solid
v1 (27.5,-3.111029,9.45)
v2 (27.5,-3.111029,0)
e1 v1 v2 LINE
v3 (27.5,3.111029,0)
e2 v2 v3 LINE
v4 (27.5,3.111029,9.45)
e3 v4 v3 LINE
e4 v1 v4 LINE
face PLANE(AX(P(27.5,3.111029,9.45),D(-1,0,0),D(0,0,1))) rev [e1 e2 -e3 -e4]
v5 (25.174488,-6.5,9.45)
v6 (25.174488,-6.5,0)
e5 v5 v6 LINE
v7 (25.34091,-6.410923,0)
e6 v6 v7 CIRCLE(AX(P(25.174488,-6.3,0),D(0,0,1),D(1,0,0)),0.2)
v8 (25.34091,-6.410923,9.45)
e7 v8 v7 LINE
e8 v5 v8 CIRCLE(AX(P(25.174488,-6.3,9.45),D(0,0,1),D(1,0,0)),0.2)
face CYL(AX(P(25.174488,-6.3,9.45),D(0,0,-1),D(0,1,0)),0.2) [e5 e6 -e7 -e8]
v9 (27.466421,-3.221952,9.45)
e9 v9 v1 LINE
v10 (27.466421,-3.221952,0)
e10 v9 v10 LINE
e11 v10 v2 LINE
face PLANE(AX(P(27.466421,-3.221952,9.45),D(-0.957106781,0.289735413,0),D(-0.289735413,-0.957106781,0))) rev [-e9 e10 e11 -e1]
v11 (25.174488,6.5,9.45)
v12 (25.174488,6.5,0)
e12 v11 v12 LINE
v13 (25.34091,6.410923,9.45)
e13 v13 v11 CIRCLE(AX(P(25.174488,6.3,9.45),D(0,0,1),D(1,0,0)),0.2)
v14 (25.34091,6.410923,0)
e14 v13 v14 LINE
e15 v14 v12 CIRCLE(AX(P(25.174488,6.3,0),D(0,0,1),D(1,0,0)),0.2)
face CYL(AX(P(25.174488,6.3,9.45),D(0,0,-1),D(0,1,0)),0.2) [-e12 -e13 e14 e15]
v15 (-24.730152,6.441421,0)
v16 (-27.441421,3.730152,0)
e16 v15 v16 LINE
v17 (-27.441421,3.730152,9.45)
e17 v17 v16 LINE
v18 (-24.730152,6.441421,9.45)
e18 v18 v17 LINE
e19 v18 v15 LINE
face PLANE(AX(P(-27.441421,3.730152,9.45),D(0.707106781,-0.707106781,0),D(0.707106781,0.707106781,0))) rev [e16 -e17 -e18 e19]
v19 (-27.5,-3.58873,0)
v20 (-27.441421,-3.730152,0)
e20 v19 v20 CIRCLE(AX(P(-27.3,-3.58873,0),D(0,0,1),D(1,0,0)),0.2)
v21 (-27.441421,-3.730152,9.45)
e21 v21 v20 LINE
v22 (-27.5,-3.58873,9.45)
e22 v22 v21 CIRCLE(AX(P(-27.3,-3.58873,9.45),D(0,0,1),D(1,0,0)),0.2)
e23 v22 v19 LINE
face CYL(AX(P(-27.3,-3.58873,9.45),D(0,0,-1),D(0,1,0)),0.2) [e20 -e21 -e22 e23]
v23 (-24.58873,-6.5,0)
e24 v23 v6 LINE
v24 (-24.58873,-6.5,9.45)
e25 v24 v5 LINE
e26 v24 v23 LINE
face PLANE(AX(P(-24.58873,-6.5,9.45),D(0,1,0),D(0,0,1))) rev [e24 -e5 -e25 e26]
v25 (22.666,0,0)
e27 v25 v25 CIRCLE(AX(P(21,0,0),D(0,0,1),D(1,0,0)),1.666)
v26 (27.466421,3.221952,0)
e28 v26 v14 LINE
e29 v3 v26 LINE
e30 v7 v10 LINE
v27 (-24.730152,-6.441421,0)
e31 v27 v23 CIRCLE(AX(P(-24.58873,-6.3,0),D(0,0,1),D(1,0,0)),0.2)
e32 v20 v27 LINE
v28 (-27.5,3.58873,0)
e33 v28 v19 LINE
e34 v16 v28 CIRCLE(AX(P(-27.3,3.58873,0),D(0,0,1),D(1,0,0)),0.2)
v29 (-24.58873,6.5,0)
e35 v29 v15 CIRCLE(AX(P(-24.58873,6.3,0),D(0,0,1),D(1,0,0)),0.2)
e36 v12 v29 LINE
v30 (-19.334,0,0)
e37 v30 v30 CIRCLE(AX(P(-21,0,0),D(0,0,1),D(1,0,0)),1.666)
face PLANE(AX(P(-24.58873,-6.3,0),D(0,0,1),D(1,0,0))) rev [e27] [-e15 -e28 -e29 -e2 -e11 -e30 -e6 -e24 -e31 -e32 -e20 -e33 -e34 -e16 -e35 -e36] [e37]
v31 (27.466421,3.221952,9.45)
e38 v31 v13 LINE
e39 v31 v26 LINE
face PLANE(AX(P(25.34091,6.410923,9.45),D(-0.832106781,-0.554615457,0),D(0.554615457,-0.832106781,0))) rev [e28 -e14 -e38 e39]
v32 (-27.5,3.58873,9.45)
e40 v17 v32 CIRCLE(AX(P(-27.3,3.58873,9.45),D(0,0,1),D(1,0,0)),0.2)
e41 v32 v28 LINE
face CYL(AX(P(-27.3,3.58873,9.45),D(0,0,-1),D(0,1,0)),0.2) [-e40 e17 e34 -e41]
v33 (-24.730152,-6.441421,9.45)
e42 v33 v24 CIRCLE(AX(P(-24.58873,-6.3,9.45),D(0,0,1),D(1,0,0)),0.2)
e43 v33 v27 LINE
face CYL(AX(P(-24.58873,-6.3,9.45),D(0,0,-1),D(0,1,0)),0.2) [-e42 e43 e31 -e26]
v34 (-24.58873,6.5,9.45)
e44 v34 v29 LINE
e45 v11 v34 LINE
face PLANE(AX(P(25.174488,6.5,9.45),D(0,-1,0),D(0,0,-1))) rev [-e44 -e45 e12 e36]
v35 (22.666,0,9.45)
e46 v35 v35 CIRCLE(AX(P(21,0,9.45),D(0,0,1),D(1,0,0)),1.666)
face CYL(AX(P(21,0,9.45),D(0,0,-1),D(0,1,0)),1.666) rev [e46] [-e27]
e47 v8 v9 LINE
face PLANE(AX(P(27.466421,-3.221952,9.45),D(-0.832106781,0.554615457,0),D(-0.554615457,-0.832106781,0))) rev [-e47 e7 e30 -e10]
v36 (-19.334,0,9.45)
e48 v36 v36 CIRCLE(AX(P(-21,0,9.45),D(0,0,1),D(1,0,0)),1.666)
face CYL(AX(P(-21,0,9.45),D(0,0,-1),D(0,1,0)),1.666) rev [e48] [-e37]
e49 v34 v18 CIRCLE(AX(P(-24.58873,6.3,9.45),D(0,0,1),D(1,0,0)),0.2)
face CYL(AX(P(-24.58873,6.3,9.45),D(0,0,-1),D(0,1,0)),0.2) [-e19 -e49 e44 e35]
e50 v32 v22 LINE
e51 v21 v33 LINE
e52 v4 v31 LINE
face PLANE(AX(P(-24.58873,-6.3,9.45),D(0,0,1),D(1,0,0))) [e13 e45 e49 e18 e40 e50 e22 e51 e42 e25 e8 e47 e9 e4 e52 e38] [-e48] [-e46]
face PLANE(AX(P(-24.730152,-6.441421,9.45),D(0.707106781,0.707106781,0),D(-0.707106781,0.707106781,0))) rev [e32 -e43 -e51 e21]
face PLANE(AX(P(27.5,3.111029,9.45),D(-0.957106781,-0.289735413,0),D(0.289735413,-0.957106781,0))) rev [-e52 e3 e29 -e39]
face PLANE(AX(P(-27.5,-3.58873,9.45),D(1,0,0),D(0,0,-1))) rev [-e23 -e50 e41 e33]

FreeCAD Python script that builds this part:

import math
import FreeCAD as App
import Part
import Sketcher

doc = App.newDocument("Part")
body = doc.addObject("PartDesign::Body", "Body")

# Sketch on XY plane
sketch1 = doc.addObject("Sketcher::SketchObject", "Sketch")
body.addObject(sketch1)
sketch1.AttachmentSupport = (doc.XY_Plane, [""])
sketch1.MapMode = "FlatFace"
sketch1.addGeometry([
    Part.LineSegment(App.Vector(-27.441421, -3.730152, 0), App.Vector(-24.730152, -6.441421, 0)),  # 0
    Part.ArcOfCircle(Part.Circle(App.Vector(-24.58873, -6.3, 0), App.Vector(0, 0, 1), 0.2), math.radians(-135.000001), math.radians(-89.999999)),  # 1
    Part.LineSegment(App.Vector(-24.58873, -6.5, 0), App.Vector(25.174488, -6.5, 0)),  # 2
    Part.ArcOfCircle(Part.Circle(App.Vector(25.174488, -6.3, 0), App.Vector(0, 0, 1), 0.2), math.radians(-90), math.radians(-33.684232)),  # 3
    Part.LineSegment(App.Vector(25.34091, -6.410923, 0), App.Vector(27.466421, -3.221952, 0)),  # 4
    Part.LineSegment(App.Vector(27.466421, -3.221952, 0), App.Vector(27.5, -3.111029, 0)),  # 5
    Part.LineSegment(App.Vector(27.5, -3.111029, 0), App.Vector(27.5, 3.111029, 0)),  # 6
    Part.LineSegment(App.Vector(27.5, 3.111029, 0), App.Vector(27.466421, 3.221952, 0)),  # 7
    Part.LineSegment(App.Vector(27.466421, 3.221952, 0), App.Vector(25.34091, 6.410923, 0)),  # 8
    Part.ArcOfCircle(Part.Circle(App.Vector(25.174488, 6.3, 0), App.Vector(0, 0, 1), 0.2), math.radians(33.684232), math.radians(90)),  # 9
    Part.LineSegment(App.Vector(25.174488, 6.5, 0), App.Vector(-24.58873, 6.5, 0)),  # 10
    Part.ArcOfCircle(Part.Circle(App.Vector(-24.58873, 6.3, 0), App.Vector(0, 0, 1), 0.2), math.radians(89.999999), math.radians(135.000001)),  # 11
    Part.LineSegment(App.Vector(-24.730152, 6.441421, 0), App.Vector(-27.441421, 3.730152, 0)),  # 12
    Part.ArcOfCircle(Part.Circle(App.Vector(-27.3, 3.58873, 0), App.Vector(0, 0, 1), 0.2), math.radians(134.999999), math.radians(180.000001)),  # 13
    Part.LineSegment(App.Vector(-27.5, 3.58873, 0), App.Vector(-27.5, -3.58873, 0)),  # 14
    Part.ArcOfCircle(Part.Circle(App.Vector(-27.3, -3.58873, 0), App.Vector(0, 0, 1), 0.2), math.radians(179.999999), math.radians(225.000001)),  # 15
    Part.Circle(App.Vector(21, 0, 0), App.Vector(0, 0, 1), 1.666),  # 16
    Part.Circle(App.Vector(-21, 0, 0), App.Vector(0, 0, 1), 1.666),  # 17
], False)
sketch1.addConstraint([
    Sketcher.Constraint("Coincident", 0, 2, 1, 1),
    Sketcher.Constraint("Coincident", 1, 2, 2, 1),
    Sketcher.Constraint("Coincident", 2, 2, 3, 1),
    Sketcher.Constraint("Coincident", 3, 2, 4, 1),
    Sketcher.Constraint("Coincident", 4, 2, 5, 1),
    Sketcher.Constraint("Coincident", 5, 2, 6, 1),
    Sketcher.Constraint("Coincident", 6, 2, 7, 1),
    Sketcher.Constraint("Coincident", 7, 2, 8, 1),
    Sketcher.Constraint("Coincident", 8, 2, 9, 1),
    Sketcher.Constraint("Coincident", 9, 2, 10, 1),
    Sketcher.Constraint("Coincident", 10, 2, 11, 1),
    Sketcher.Constraint("Coincident", 11, 2, 12, 1),
    Sketcher.Constraint("Coincident", 12, 2, 13, 1),
    Sketcher.Constraint("Coincident", 13, 2, 14, 1),
    Sketcher.Constraint("Coincident", 14, 2, 15, 1),
    Sketcher.Constraint("Coincident", 15, 2, 0, 1),
    Sketcher.Constraint("Horizontal", 2),
    Sketcher.Constraint("Vertical", 6),
    Sketcher.Constraint("Horizontal", 10),
    Sketcher.Constraint("Vertical", 14),
    Sketcher.Constraint("PointOnObject", 16, 3, -1),
    Sketcher.Constraint("PointOnObject", 17, 3, -1),
    Sketcher.Constraint("Radius", 1, 0.2),
    Sketcher.Constraint("Radius", 3, 0.2),
    Sketcher.Constraint("Radius", 9, 0.2),
    Sketcher.Constraint("Radius", 11, 0.2),
    Sketcher.Constraint("Radius", 13, 0.2),
    Sketcher.Constraint("Radius", 15, 0.2),
    Sketcher.Constraint("Diameter", 16, 3.332),
    Sketcher.Constraint("Diameter", 17, 3.332),
    Sketcher.Constraint("DistanceX", -1, 1, 16, 3, 21.0),
    Sketcher.Constraint("DistanceX", 17, 3, -1, 1, 21.0),
    Sketcher.Constraint("DistanceY", 1, 3, -1, 1, 6.3),
    Sketcher.Constraint("DistanceY", -1, 1, 9, 3, 6.3),
    Sketcher.Constraint("DistanceX", 13, 3, -1, 1, 27.3),
    Sketcher.Constraint("DistanceX", -1, 1, 5, 2, 27.5),
    Sketcher.Constraint("DistanceX", 2, 1, 2, 2, 49.763218),
    Sketcher.Constraint("DistanceX", 10, 2, 10, 1, 49.763218),
    Sketcher.Constraint("DistanceY", 14, 2, 14, 1, 7.17746),
    Sketcher.Constraint("DistanceY", 6, 1, 6, 2, 6.222058),
    Sketcher.Constraint("DistanceX", 1, 3, -1, 1, 24.58873),
    Sketcher.Constraint("DistanceX", -1, 1, 3, 3, 25.174488),
    Sketcher.Constraint("DistanceX", -1, 1, 9, 3, 25.174488),
    Sketcher.Constraint("DistanceX", 11, 3, -1, 1, 24.58873),
    Sketcher.Constraint("DistanceY", -1, 1, 13, 3, 3.58873),
    Sketcher.Constraint("DistanceY", 15, 3, -1, 1, 3.58873),
    Sketcher.Constraint("DistanceX", 0, 2, -1, 1, 24.730152),
    Sketcher.Constraint("DistanceX", 1, 2, -1, 1, 24.58873),
    Sketcher.Constraint("DistanceX", -1, 1, 3, 2, 25.34091),
    Sketcher.Constraint("DistanceX", -1, 1, 4, 2, 27.466421),
    Sketcher.Constraint("DistanceY", 4, 2, -1, 1, 3.221952),
    Sketcher.Constraint("DistanceY", 5, 2, -1, 1, 3.111029),
    Sketcher.Constraint("DistanceX", -1, 1, 7, 2, 27.466421),
    Sketcher.Constraint("DistanceY", -1, 1, 7, 2, 3.221952),
    Sketcher.Constraint("DistanceX", -1, 1, 8, 2, 25.34091),
    Sketcher.Constraint("DistanceX", -1, 1, 9, 2, 25.174488),
    Sketcher.Constraint("DistanceX", 11, 2, -1, 1, 24.730152),
    Sketcher.Constraint("DistanceX", 12, 2, -1, 1, 27.441421),
    Sketcher.Constraint("DistanceY", -1, 1, 13, 2, 3.58873),
    Sketcher.Constraint("DistanceX", 15, 2, -1, 1, 27.441421),
])
pad1 = doc.addObject("PartDesign::Pad", "Pad")
body.addObject(pad1)
pad1.Profile = sketch1
pad1.Length = 9.45

doc.recompute()
